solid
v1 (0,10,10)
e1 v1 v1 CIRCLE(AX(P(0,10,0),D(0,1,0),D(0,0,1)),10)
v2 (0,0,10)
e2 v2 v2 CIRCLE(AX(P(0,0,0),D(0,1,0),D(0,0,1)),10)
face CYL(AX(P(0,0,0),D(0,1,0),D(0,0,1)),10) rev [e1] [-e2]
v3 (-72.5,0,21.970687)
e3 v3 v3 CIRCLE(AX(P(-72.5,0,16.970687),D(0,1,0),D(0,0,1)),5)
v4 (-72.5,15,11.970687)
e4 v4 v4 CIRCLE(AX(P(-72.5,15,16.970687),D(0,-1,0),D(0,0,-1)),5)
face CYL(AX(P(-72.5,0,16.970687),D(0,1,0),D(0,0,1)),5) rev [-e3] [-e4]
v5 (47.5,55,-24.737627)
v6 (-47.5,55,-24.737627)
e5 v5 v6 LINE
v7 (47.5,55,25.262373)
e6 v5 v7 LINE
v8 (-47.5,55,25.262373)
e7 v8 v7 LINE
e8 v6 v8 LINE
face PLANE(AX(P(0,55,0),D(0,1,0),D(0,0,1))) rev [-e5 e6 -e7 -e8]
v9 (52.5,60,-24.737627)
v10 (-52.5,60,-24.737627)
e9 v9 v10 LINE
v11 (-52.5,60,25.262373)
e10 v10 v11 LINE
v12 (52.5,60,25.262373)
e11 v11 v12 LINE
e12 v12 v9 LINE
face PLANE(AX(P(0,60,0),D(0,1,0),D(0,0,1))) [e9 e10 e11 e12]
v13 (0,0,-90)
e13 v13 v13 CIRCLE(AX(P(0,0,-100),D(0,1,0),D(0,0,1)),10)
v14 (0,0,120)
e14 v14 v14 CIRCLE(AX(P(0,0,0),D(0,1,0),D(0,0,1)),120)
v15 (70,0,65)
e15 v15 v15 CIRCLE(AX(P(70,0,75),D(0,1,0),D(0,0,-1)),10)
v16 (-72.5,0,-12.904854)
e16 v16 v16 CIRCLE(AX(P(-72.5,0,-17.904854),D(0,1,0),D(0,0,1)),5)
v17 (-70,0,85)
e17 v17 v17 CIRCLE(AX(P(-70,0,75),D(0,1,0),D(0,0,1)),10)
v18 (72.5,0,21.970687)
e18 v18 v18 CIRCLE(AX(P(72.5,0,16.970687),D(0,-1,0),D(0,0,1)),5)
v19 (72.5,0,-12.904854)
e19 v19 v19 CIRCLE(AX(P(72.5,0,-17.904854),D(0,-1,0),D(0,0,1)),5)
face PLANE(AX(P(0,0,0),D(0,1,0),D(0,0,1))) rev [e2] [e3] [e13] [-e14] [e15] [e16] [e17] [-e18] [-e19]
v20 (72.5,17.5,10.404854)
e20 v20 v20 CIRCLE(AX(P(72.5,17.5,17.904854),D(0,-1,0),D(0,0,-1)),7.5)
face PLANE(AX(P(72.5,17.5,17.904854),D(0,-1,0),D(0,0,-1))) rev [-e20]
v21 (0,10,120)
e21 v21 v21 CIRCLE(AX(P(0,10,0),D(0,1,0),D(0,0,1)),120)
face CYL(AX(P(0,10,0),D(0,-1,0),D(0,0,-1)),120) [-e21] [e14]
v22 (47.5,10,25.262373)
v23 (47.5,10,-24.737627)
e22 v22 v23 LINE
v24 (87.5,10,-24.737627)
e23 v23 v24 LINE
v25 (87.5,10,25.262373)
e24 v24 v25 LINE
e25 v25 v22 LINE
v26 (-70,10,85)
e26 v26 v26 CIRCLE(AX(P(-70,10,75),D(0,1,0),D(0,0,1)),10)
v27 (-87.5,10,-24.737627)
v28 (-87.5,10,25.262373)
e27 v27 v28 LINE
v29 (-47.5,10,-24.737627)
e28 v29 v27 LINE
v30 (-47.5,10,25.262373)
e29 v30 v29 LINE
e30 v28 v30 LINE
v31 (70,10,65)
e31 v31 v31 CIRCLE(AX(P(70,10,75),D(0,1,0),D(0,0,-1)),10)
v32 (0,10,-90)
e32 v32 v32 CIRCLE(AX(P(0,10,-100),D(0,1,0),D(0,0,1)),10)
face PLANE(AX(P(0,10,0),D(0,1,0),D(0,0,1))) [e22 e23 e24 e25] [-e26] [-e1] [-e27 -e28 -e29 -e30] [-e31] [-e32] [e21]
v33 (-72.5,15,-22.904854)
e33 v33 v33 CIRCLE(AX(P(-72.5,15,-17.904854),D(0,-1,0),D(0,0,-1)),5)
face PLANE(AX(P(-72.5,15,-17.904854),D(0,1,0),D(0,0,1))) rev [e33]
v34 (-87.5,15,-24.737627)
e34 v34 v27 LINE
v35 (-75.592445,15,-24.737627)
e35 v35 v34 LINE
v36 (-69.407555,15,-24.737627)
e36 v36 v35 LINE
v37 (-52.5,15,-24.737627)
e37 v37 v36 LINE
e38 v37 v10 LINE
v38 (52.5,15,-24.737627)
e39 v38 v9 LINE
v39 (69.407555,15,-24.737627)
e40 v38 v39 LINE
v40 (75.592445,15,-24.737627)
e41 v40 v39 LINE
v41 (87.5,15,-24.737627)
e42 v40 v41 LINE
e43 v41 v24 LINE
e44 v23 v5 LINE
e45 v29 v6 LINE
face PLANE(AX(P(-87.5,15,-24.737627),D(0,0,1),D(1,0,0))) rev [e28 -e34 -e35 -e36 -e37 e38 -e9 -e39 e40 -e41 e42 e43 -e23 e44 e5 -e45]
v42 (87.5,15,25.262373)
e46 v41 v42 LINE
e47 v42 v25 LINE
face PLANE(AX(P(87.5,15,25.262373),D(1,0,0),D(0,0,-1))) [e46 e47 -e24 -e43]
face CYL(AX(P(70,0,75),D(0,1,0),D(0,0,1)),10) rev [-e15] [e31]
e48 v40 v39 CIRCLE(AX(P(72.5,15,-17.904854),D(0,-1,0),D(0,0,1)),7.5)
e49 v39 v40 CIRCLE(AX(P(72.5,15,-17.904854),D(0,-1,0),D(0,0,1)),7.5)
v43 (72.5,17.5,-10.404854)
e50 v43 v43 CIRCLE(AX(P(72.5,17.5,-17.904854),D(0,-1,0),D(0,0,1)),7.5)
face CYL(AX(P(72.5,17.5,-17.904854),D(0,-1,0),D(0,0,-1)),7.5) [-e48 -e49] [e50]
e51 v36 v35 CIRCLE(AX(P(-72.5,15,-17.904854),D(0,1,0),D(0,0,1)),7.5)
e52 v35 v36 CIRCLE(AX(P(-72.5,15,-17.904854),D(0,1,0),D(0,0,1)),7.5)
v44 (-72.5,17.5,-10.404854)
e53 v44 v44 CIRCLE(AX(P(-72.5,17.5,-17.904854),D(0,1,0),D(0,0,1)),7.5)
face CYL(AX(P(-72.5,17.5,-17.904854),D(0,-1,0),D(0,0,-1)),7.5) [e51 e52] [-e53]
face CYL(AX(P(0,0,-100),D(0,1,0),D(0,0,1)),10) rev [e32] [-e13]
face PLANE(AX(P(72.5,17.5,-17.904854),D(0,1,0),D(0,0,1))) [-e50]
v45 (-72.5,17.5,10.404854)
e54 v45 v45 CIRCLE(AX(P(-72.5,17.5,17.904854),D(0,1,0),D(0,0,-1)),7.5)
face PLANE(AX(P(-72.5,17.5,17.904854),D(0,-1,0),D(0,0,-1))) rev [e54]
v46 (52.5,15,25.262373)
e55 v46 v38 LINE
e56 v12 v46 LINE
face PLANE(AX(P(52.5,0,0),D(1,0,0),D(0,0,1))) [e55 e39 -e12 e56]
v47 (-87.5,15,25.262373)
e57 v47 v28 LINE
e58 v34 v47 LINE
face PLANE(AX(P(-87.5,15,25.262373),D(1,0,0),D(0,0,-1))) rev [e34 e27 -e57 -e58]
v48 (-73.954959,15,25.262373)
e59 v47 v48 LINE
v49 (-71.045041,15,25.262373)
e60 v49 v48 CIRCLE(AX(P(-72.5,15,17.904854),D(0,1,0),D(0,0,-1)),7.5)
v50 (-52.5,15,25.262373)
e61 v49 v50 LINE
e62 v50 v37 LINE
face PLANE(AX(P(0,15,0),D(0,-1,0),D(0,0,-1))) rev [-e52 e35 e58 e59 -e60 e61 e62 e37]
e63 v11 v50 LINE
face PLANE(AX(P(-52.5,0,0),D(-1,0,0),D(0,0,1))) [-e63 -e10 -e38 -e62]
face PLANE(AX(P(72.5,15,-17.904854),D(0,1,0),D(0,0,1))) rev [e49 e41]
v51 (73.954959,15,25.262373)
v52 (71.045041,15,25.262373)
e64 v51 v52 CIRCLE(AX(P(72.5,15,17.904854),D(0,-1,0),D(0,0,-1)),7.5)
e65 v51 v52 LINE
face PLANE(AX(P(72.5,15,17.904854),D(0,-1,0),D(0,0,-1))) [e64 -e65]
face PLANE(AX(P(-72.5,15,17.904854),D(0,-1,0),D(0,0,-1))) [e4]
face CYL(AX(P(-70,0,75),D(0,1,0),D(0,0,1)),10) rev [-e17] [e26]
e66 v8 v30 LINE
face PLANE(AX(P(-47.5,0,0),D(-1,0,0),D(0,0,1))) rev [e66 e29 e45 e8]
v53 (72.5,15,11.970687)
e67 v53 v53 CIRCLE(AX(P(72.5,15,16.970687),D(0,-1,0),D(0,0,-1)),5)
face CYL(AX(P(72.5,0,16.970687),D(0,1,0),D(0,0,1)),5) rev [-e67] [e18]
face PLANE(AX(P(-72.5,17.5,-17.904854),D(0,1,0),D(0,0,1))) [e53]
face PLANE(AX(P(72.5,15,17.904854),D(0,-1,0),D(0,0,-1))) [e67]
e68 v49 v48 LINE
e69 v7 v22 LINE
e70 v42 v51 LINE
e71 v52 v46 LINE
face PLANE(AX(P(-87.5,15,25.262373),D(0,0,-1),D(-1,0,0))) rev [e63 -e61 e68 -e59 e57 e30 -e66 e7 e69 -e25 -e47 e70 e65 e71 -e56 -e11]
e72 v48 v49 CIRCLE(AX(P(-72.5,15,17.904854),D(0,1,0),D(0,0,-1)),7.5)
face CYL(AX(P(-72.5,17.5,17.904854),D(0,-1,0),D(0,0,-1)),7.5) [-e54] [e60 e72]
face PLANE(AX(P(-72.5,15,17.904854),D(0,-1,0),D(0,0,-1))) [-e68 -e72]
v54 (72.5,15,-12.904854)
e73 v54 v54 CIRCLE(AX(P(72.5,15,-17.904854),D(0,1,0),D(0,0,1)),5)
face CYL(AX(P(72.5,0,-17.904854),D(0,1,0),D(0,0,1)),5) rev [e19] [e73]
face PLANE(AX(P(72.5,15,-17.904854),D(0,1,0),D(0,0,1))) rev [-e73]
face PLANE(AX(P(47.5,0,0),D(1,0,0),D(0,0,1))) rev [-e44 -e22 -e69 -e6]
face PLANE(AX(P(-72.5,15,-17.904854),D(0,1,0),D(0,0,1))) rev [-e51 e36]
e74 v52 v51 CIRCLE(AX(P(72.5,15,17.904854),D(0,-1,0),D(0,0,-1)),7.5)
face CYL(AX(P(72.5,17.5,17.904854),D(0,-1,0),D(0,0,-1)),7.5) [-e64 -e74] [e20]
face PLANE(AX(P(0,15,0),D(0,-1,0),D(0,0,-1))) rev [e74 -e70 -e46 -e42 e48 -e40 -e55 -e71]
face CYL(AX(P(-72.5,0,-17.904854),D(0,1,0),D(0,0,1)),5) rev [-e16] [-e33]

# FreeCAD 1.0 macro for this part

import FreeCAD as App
import Part
import Sketcher
from FreeCAD import Vector
Q = App.Units.Quantity


def add_polygon(sketch, points):
    """Adds a closed chain of lines whose ends are joined by coincident constraints."""
    first, n = sketch.GeometryCount, len(points)
    for a, b in zip(points, points[1:] + points[:1]):
        sketch.addGeometry(Part.LineSegment(App.Vector(*a, 0), App.Vector(*b, 0)), False)
    for i in range(n):
        sketch.addConstraint(Sketcher.Constraint("Coincident", first + i, 2, first + (i + 1) % n, 1))

doc = App.newDocument("Part")
body = doc.addObject("PartDesign::Body", "Body")

# Sketch on XZ plane
sketch1 = body.newObject("Sketcher::SketchObject", "Sketch")
sketch1.AttachmentSupport = (doc.getObject("XZ_Plane"), [""])
sketch1.MapMode = "FlatFace"
sketch1.addGeometry(Part.Circle(Vector(0, 0, 0), Vector(0, 0, 1), 120), False)
sketch1.addConstraint([
    Sketcher.Constraint("Coincident", 0, 3, -1, 1),
    Sketcher.Constraint("Diameter", 0, Q("240 mm")),
])
pad1 = body.newObject("PartDesign::Pad", "Pad")
pad1.Profile = sketch1
pad1.Length = 10
pad1.Reversed = True

# Sketch on XZ plane
sketch2 = body.newObject("Sketcher::SketchObject", "Sketch001")
sketch2.AttachmentSupport = (doc.getObject("XZ_Plane"), [""])
sketch2.MapMode = "FlatFace"
sketch2.AttachmentOffset = App.Placement(Vector(0, 0, -10), App.Rotation())
sketch2.addGeometry(Part.Circle(Vector(0, 0, 0), Vector(0, 0, 1), 10), False)
sketch2.addConstraint([
    Sketcher.Constraint("Coincident", 0, 3, -1, 1),
    Sketcher.Constraint("Diameter", 0, Q("20 mm")),
])
pocket1 = body.newObject("PartDesign::Pocket", "Pocket")
pocket1.Profile = sketch2
pocket1.Type = "ThroughAll"
pocket1.Midplane = True

# Sketch on XZ plane
sketch3 = body.newObject("Sketcher::SketchObject", "Sketch002")
sketch3.AttachmentSupport = (doc.getObject("XZ_Plane"), [""])
sketch3.MapMode = "FlatFace"
sketch3.AttachmentOffset = App.Placement(Vector(0, 0, -10), App.Rotation())
sketch3.addGeometry([
    Part.Circle(Vector(0, -100, 0), Vector(0, 0, 1), 10),
    Part.Circle(Vector(-70, 75, 0), Vector(0, 0, 1), 10),
    Part.Circle(Vector(70, 75, 0), Vector(0, 0, 1), 10),
], False)
sketch3.addConstraint([
    Sketcher.Constraint("Equal", 0, 1),
    Sketcher.Constraint("Equal", 1, 2),
    Sketcher.Constraint("Symmetric", 1, 3, 2, 3, -2),
    Sketcher.Constraint("PointOnObject", 0, 3, -2),
    Sketcher.Constraint("Diameter", 0, Q("20 mm")),
    Sketcher.Constraint("DistanceY", 0, 3, -1, 1, Q("100 mm")),
    Sketcher.Constraint("DistanceX", 1, 3, -1, 1, Q("70 mm")),
    Sketcher.Constraint("DistanceY", -1, 1, 1, 3, Q("75 mm")),
])
pocket2 = body.newObject("PartDesign::Pocket", "Pocket001")
pocket2.Profile = sketch3
pocket2.Type = "ThroughAll"
pocket2.Midplane = True

# Sketch on XZ plane
sketch4 = body.newObject("Sketcher::SketchObject", "Sketch003")
sketch4.AttachmentSupport = (doc.getObject("XZ_Plane"), [""])
sketch4.MapMode = "FlatFace"
sketch4.AttachmentOffset = App.Placement(Vector(0, 0, -10), App.Rotation())
add_polygon(sketch4, [(-88, -25), (-88, 25), (-52, 25), (-52, -25)])  # lines 0-3
sketch4.addConstraint([
    Sketcher.Constraint("Vertical", 0),
    Sketcher.Constraint("Horizontal", 1),
    Sketcher.Constraint("Vertical", 2),
    Sketcher.Constraint("Horizontal", 3),
    Sketcher.Constraint("DistanceX", 1, 1, 1, 2, Q("35 mm")),
    Sketcher.Constraint("DistanceY", 0, 1, 0, 2, Q("50 mm")),
    Sketcher.Constraint("DistanceX", 0, 2, -1, 1, Q("87.5 mm")),
    Sketcher.Constraint("DistanceY", -1, 1, 0, 2, Q("25.262373 mm")),
])
pad2 = body.newObject("PartDesign::Pad", "Pad001")
pad2.Profile = sketch4
pad2.Length = 5
pad2.Reversed = True
doc.recompute()

mirrored = body.newObject("PartDesign::Mirrored", "Mirrored")
mirrored.Originals = [pad2]
mirrored.MirrorPlane = (doc.getObject("YZ_Plane"), [""])
body.Tip = mirrored

# Sketch on YZ plane
sketch5 = body.newObject("Sketcher::SketchObject", "Sketch004")
sketch5.AttachmentSupport = (doc.getObject("YZ_Plane"), [""])
sketch5.MapMode = "FlatFace"
sketch5.AttachmentOffset = App.Placement(Vector(0, 0, -52.5), App.Rotation())
add_polygon(sketch5, [(55, 25), (10, 25), (10, -25), (55, -25)])  # lines 0-3
sketch5.addConstraint([
    Sketcher.Constraint("Horizontal", 0),
    Sketcher.Constraint("Vertical", 1),
    Sketcher.Constraint("Horizontal", 2),
    Sketcher.Constraint("Vertical", 3),
    Sketcher.Constraint("DistanceX", 0, 2, 0, 1, Q("45 mm")),
    Sketcher.Constraint("DistanceY", 1, 2, 1, 1, Q("50 mm")),
    Sketcher.Constraint("DistanceX", -1, 1, 0, 2, Q("10 mm")),
    Sketcher.Constraint("DistanceY", -1, 1, 0, 2, Q("25.262373 mm")),
])
pad3 = body.newObject("PartDesign::Pad", "Pad002")
pad3.Profile = sketch5
pad3.Length = 5
doc.recompute()

mirrored2 = body.newObject("PartDesign::Mirrored", "Mirrored001")
mirrored2.Originals = [pad3]
mirrored2.MirrorPlane = (doc.getObject("YZ_Plane"), [""])
body.Tip = mirrored2

# Sketch on XZ plane
sketch6 = body.newObject("Sketcher::SketchObject", "Sketch005")
sketch6.AttachmentSupport = (doc.getObject("XZ_Plane"), [""])
sketch6.MapMode = "FlatFace"
sketch6.AttachmentOffset = App.Placement(Vector(0, 0, -55), App.Rotation())
add_polygon(sketch6, [(-52, -25), (-52, 25), (52, 25), (52, -25)])  # lines 0-3
sketch6.addConstraint([
    Sketcher.Constraint("Vertical", 0),
    Sketcher.Constraint("Horizontal", 1),
    Sketcher.Constraint("Vertical", 2),
    Sketcher.Constraint("Horizontal", 3),
    Sketcher.Constraint("DistanceX", 1, 1, 1, 2, Q("105 mm")),
    Sketcher.Constraint("DistanceY", 0, 1, 0, 2, Q("50 mm")),
    Sketcher.Constraint("DistanceX", 0, 2, -1, 1, Q("52.5 mm")),
    Sketcher.Constraint("DistanceY", -1, 1, 0, 2, Q("25.262373 mm")),
])
pad4 = body.newObject("PartDesign::Pad", "Pad003")
pad4.Profile = sketch6
pad4.Length = 5
pad4.Reversed = True

# Sketch on XZ plane
sketch7 = body.newObject("Sketcher::SketchObject", "Sketch006")
sketch7.AttachmentSupport = (doc.getObject("XZ_Plane"), [""])
sketch7.MapMode = "FlatFace"
sketch7.AttachmentOffset = App.Placement(Vector(0, 0, -15), App.Rotation())
sketch7.addGeometry([
    Part.Circle(Vector(-72, -18, 0), Vector(0, 0, 1), 5),
    Part.Circle(Vector(-72, 17, 0), Vector(0, 0, 1), 5),
], False)
sketch7.addConstraint([
    Sketcher.Constraint("Equal", 0, 1),
    Sketcher.Constraint("Vertical", 0, 3, 1, 3),
    Sketcher.Constraint("Diameter", 0, Q("10 mm")),
    Sketcher.Constraint("DistanceX", 0, 3, -1, 1, Q("72.5 mm")),
    Sketcher.Constraint("DistanceY", 0, 3, 1, 3, Q("34.875541 mm")),
    Sketcher.Constraint("DistanceY", 0, 3, -1, 1, Q("17.904854 mm")),
])
pocket3 = body.newObject("PartDesign::Pocket", "Pocket002")
pocket3.Profile = sketch7
pocket3.Length = 353.140997
pocket3.Midplane = True
doc.recompute()

mirrored3 = body.newObject("PartDesign::Mirrored", "Mirrored002")
mirrored3.Originals = [pocket3]
mirrored3.MirrorPlane = (doc.getObject("YZ_Plane"), [""])
body.Tip = mirrored3

# Sketch on XZ plane
sketch8 = body.newObject("Sketcher::SketchObject", "Sketch007")
sketch8.AttachmentSupport = (doc.getObject("XZ_Plane"), [""])
sketch8.MapMode = "FlatFace"
sketch8.AttachmentOffset = App.Placement(Vector(0, 0, -15), App.Rotation())
sketch8.addGeometry([
    Part.Circle(Vector(-72, -18, 0), Vector(0, 0, 1), 8),
    Part.Circle(Vector(-72, 18, 0), Vector(0, 0, 1), 8),
], False)
sketch8.addConstraint([
    Sketcher.Constraint("Equal", 0, 1),
    Sketcher.Constraint("Symmetric", 0, 3, 1, 3, -1),
    Sketcher.Constraint("Diameter", 0, Q("15 mm")),
    Sketcher.Constraint("DistanceX", 0, 3, -1, 1, Q("72.5 mm")),
    Sketcher.Constraint("DistanceY", 0, 3, -1, 1, Q("17.904854 mm")),
])
pad5 = body.newObject("PartDesign::Pad", "Pad004")
pad5.Profile = sketch8
pad5.Length = 2.5
pad5.Reversed = True
doc.recompute()

mirrored4 = body.newObject("PartDesign::Mirrored", "Mirrored003")
mirrored4.Originals = [pad5]
mirrored4.MirrorPlane = (doc.getObject("YZ_Plane"), [""])
body.Tip = mirrored4

doc.recompute()
